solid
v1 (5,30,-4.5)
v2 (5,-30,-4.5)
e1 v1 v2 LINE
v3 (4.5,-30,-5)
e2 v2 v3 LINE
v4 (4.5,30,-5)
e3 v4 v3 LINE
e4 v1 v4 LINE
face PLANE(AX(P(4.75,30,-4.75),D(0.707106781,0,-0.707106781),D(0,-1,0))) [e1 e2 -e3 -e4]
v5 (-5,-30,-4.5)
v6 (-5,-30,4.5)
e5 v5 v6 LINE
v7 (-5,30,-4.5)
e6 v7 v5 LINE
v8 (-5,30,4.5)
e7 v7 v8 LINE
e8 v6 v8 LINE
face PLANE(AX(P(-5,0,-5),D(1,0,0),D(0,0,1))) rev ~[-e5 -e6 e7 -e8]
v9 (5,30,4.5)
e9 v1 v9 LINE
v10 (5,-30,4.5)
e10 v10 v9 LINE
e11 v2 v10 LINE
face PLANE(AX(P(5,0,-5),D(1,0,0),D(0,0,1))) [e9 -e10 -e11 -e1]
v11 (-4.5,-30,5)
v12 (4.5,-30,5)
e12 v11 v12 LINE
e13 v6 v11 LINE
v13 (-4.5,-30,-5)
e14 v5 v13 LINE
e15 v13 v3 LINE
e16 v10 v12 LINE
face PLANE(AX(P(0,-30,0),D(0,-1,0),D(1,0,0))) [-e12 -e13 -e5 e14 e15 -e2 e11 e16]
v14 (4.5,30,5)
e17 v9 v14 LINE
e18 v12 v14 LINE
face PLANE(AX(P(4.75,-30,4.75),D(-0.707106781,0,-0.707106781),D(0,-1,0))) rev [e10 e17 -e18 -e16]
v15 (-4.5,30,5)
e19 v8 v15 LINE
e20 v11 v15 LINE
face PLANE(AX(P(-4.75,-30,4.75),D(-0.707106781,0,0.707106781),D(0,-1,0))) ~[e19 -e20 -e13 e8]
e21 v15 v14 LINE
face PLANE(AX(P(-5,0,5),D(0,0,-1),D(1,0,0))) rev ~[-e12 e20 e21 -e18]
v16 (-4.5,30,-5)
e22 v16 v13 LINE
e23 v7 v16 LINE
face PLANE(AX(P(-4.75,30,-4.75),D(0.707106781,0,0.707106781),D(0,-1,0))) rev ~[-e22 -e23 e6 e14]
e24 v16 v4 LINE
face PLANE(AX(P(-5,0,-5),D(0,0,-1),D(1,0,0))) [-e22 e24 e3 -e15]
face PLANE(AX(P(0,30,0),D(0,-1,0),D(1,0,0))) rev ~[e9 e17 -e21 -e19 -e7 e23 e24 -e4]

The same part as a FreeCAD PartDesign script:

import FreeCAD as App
import Part
import Sketcher

V = App.Vector
Q = App.Units.Quantity


def edges_at(feature, points):
    """Names of the edges that pass closest to the given points."""
    edges = feature.Shape.Edges
    near = lambda p: min(range(len(edges)), key=lambda i: edges[i].distToShape(Part.Vertex(*p))[0])
    return sorted({f"Edge{near(p) + 1}" for p in points})


def add_polygon(sketch, points):
    """Adds a closed chain of lines whose ends are joined by coincident constraints."""
    first, n = sketch.GeometryCount, len(points)
    for a, b in zip(points, points[1:] + points[:1]):
        sketch.addGeometry(Part.LineSegment(App.Vector(*a, 0), App.Vector(*b, 0)), False)
    for i in range(n):
        sketch.addConstraint(Sketcher.Constraint("Coincident", first + i, 2, first + (i + 1) % n, 1))

doc = App.newDocument("Part")
body = doc.addObject("PartDesign::Body", "Body")

sketch1 = doc.addObject("Sketcher::SketchObject", "Sketch")
body.addObject(sketch1)
sketch1.AttachmentSupport = (doc.XZ_Plane, [""])
sketch1.MapMode = "FlatFace"
add_polygon(sketch1, [(-5, 5), (-5, -5), (5, -5), (5, 5)])
sketch1.addConstraint([
    Sketcher.Constraint("Vertical", 0),
    Sketcher.Constraint("Horizontal", 1),
    Sketcher.Constraint("Vertical", 2),
    Sketcher.Constraint("Horizontal", 3),
    Sketcher.Constraint("Symmetric", 0, 2, 2, 2, -1, 1),
    Sketcher.Constraint("Equal", 3, 0),
    Sketcher.Constraint("DistanceX", 1, 1, 1, 2, Q("10 mm")),
])
pad1 = doc.addObject("PartDesign::Pad", "Pad")
body.addObject(pad1)
pad1.Profile = sketch1
pad1.Length = 60
pad1.Midplane = True
doc.recompute()

chamfer = doc.addObject("PartDesign::Chamfer", "Chamfer")
body.addObject(chamfer)
chamfer.Base = (pad1, edges_at(pad1, [
    (5, 0, 5),
    (5, 0, -5),
    (-5, 0, 5),
    (-5, 0, -5),
]))
chamfer.Size = 0.5

doc.recompute()
